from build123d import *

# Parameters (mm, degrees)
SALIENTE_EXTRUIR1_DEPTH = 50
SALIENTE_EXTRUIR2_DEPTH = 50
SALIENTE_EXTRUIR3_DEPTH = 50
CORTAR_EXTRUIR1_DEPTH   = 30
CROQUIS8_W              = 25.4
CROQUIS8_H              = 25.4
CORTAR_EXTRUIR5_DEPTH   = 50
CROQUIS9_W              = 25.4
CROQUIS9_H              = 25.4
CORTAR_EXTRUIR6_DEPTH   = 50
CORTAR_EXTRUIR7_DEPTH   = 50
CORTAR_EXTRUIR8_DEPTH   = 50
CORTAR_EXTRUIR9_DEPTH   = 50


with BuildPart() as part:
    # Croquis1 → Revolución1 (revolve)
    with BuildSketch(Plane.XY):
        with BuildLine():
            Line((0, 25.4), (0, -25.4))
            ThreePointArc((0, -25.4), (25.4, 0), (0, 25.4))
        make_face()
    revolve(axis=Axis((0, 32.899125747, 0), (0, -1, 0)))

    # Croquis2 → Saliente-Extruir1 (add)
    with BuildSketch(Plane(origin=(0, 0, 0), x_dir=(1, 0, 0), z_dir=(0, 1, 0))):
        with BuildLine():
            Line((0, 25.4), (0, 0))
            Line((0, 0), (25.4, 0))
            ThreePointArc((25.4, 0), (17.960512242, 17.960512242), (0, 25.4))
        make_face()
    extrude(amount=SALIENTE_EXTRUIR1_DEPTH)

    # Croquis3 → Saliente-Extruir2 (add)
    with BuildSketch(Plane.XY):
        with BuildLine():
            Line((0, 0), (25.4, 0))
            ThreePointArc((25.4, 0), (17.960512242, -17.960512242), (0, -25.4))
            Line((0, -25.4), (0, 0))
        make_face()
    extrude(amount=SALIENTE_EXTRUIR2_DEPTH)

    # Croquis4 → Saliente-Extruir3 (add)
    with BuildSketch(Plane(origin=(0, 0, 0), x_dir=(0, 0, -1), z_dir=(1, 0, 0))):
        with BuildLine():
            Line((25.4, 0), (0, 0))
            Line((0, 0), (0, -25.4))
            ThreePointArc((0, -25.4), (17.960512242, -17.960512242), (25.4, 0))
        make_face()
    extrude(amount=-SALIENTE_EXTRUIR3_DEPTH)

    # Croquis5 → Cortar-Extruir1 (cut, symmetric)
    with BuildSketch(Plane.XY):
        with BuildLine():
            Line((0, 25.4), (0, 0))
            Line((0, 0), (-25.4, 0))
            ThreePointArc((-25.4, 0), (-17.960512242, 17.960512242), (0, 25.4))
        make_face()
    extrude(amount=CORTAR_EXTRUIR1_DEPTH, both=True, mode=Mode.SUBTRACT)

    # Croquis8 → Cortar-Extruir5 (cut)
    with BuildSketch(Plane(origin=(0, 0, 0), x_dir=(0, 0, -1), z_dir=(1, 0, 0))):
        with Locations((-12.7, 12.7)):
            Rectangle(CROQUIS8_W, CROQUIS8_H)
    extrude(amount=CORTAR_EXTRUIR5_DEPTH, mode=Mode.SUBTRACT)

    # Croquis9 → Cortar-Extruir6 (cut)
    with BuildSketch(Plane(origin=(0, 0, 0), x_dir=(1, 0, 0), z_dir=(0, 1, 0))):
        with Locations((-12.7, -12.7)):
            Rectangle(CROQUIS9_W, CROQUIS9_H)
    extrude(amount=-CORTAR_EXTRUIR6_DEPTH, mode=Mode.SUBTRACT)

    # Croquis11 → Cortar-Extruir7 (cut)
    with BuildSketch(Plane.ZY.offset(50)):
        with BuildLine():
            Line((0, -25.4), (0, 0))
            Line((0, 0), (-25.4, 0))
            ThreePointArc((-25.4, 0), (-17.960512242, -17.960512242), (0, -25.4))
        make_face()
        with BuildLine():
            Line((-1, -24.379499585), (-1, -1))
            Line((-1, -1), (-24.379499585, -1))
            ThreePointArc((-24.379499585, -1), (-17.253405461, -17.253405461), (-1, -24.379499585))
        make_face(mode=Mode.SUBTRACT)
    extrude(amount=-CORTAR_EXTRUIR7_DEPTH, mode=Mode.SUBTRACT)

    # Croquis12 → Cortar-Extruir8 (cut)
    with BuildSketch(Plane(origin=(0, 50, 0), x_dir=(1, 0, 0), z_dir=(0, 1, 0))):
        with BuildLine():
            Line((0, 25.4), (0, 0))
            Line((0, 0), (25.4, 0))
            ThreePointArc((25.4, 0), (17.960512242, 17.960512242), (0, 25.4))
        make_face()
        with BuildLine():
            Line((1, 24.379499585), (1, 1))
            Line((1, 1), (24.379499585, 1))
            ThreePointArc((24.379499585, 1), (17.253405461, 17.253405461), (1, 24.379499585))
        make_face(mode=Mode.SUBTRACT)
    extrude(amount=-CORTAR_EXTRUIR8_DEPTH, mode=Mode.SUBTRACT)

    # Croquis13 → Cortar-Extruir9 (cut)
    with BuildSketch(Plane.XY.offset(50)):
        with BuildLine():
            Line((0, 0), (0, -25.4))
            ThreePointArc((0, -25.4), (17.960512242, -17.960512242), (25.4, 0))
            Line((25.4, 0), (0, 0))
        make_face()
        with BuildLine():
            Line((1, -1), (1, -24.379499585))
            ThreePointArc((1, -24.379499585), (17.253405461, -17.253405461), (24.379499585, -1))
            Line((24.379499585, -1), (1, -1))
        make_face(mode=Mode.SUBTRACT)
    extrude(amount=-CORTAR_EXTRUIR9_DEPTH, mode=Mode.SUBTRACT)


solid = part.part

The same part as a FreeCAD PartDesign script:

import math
import FreeCAD as App
import Part
import Sketcher
from FreeCAD import Vector
Q = App.Units.Quantity

doc = App.newDocument("Part")
body = doc.addObject("PartDesign::Body", "Body")

# Sketch on XY plane
sketch1 = body.newObject("Sketcher::SketchObject", "Sketch")
sketch1.AttachmentSupport = (doc.getObject("XY_Plane"), [""])
sketch1.MapMode = "FlatFace"
sketch1.addGeometry(Part.LineSegment(Vector(0, 25.4, 0), Vector(0, -25.4, 0)), False)
sketch1.addGeometry(Part.ArcOfCircle(Part.Circle(Vector(0, 0, 0), Vector(0, 0, 1), 25.4), math.radians(-90), math.radians(90)), False)
sketch1.addConstraint(Sketcher.Constraint("Coincident", 0, 1, 1, 2))
sketch1.addConstraint(Sketcher.Constraint("Coincident", 1, 1, 0, 2))
sketch1.addConstraint(Sketcher.Constraint("Vertical", 0))
sketch1.addConstraint(Sketcher.Constraint("Coincident", 1, 3, -1, 1))
sketch1.addConstraint(Sketcher.Constraint("PointOnObject", 0, 1, -2))
sketch1.addConstraint(Sketcher.Constraint("Radius", 1, Q("25.4 mm")))
revolution = body.newObject("PartDesign::Revolution", "Revolution")
revolution.Profile = sketch1
revolution.ReferenceAxis = (sketch1, ["V_Axis"])
revolution.Angle = 360

# Sketch on XZ plane
sketch2 = body.newObject("Sketcher::SketchObject", "Sketch001")
sketch2.AttachmentSupport = (doc.getObject("XZ_Plane"), [""])
sketch2.MapMode = "FlatFace"
sketch2.addGeometry(Part.LineSegment(Vector(0, -25.4, 0), Vector(0, 0, 0)), False)
sketch2.addGeometry(Part.LineSegment(Vector(0, 0, 0), Vector(25.4, 0, 0)), False)
sketch2.addGeometry(Part.ArcOfCircle(Part.Circle(Vector(0, 0, 0), Vector(0, 0, 1), 25.4), math.radians(-90), math.radians(0)), False)
sketch2.addConstraint(Sketcher.Constraint("Coincident", 0, 2, 1, 1))
sketch2.addConstraint(Sketcher.Constraint("Coincident", 1, 2, 2, 2))
sketch2.addConstraint(Sketcher.Constraint("Coincident", 2, 1, 0, 1))
sketch2.addConstraint(Sketcher.Constraint("Vertical", 0))
sketch2.addConstraint(Sketcher.Constraint("Horizontal", 1))
sketch2.addConstraint(Sketcher.Constraint("Coincident", 2, 3, -1, 1))
sketch2.addConstraint(Sketcher.Constraint("Coincident", 0, 2, -1, 1))
sketch2.addConstraint(Sketcher.Constraint("Radius", 2, Q("25.4 mm")))
pad1 = body.newObject("PartDesign::Pad", "Pad")
pad1.Profile = sketch2
pad1.Length = 50
pad1.Reversed = True

# Sketch on XY plane
sketch3 = body.newObject("Sketcher::SketchObject", "Sketch002")
sketch3.AttachmentSupport = (doc.getObject("XY_Plane"), [""])
sketch3.MapMode = "FlatFace"
sketch3.addGeometry(Part.LineSegment(Vector(25.4, 0, 0), Vector(0, 0, 0)), False)
sketch3.addGeometry(Part.LineSegment(Vector(0, 0, 0), Vector(0, -25.4, 0)), False)
sketch3.addGeometry(Part.ArcOfCircle(Part.Circle(Vector(0, 0, 0), Vector(0, 0, 1), 25.4), math.radians(-90), math.radians(0)), False)
sketch3.addConstraint(Sketcher.Constraint("Coincident", 0, 2, 1, 1))
sketch3.addConstraint(Sketcher.Constraint("Coincident", 1, 2, 2, 1))
sketch3.addConstraint(Sketcher.Constraint("Coincident", 2, 2, 0, 1))
sketch3.addConstraint(Sketcher.Constraint("Horizontal", 0))
sketch3.addConstraint(Sketcher.Constraint("Vertical", 1))
sketch3.addConstraint(Sketcher.Constraint("Coincident", 2, 3, -1, 1))
sketch3.addConstraint(Sketcher.Constraint("Coincident", 0, 2, -1, 1))
sketch3.addConstraint(Sketcher.Constraint("Radius", 2, Q("25.4 mm")))
pad2 = body.newObject("PartDesign::Pad", "Pad001")
pad2.Profile = sketch3
pad2.Length = 50

# Sketch on YZ plane
sketch4 = body.newObject("Sketcher::SketchObject", "Sketch003")
sketch4.AttachmentSupport = (doc.getObject("YZ_Plane"), [""])
sketch4.MapMode = "FlatFace"
sketch4.addGeometry(Part.LineSegment(Vector(0, -25.4, 0), Vector(0, 0, 0)), False)
sketch4.addGeometry(Part.LineSegment(Vector(0, 0, 0), Vector(-25.4, 0, 0)), False)
sketch4.addGeometry(Part.ArcOfCircle(Part.Circle(Vector(0, 0, 0), Vector(0, 0, 1), 25.4), math.radians(180), math.radians(270)), False)
sketch4.addConstraint(Sketcher.Constraint("Coincident", 0, 2, 1, 1))
sketch4.addConstraint(Sketcher.Constraint("Coincident", 1, 2, 2, 1))
sketch4.addConstraint(Sketcher.Constraint("Coincident", 2, 2, 0, 1))
sketch4.addConstraint(Sketcher.Constraint("Vertical", 0))
sketch4.addConstraint(Sketcher.Constraint("Horizontal", 1))
sketch4.addConstraint(Sketcher.Constraint("Coincident", 2, 3, -1, 1))
sketch4.addConstraint(Sketcher.Constraint("Coincident", 0, 2, -1, 1))
sketch4.addConstraint(Sketcher.Constraint("Radius", 2, Q("25.4 mm")))
pad3 = body.newObject("PartDesign::Pad", "Pad002")
pad3.Profile = sketch4
pad3.Length = 50
pad3.Reversed = True

# Sketch on XY plane
sketch5 = body.newObject("Sketcher::SketchObject", "Sketch004")
sketch5.AttachmentSupport = (doc.getObject("XY_Plane"), [""])
sketch5.MapMode = "FlatFace"
sketch5.addGeometry(Part.LineSegment(Vector(0, 0, 0), Vector(0, 25.4, 0)), False)
sketch5.addGeometry(Part.ArcOfCircle(Part.Circle(Vector(0, 0, 0), Vector(0, 0, 1), 25.4), math.radians(90), math.radians(180)), False)
sketch5.addGeometry(Part.LineSegment(Vector(-25.4, 0, 0), Vector(0, 0, 0)), False)
sketch5.addConstraint(Sketcher.Constraint("Coincident", 0, 2, 1, 1))
sketch5.addConstraint(Sketcher.Constraint("Coincident", 1, 2, 2, 1))
sketch5.addConstraint(Sketcher.Constraint("Coincident", 2, 2, 0, 1))
sketch5.addConstraint(Sketcher.Constraint("Vertical", 0))
sketch5.addConstraint(Sketcher.Constraint("Horizontal", 2))
sketch5.addConstraint(Sketcher.Constraint("Coincident", 1, 3, -1, 1))
sketch5.addConstraint(Sketcher.Constraint("Coincident", 2, 2, -1, 1))
sketch5.addConstraint(Sketcher.Constraint("Radius", 1, Q("25.4 mm")))
pocket1 = body.newObject("PartDesign::Pocket", "Pocket")
pocket1.Profile = sketch5
pocket1.Length = 60
pocket1.Midplane = True

# Sketch on YZ plane
sketch6 = body.newObject("Sketcher::SketchObject", "Sketch005")
sketch6.AttachmentSupport = (doc.getObject("YZ_Plane"), [""])
sketch6.MapMode = "FlatFace"
sketch6.addGeometry(Part.LineSegment(Vector(25.4, 25.4, 0), Vector(0, 25.4, 0)), False)
sketch6.addGeometry(Part.LineSegment(Vector(0, 25.4, 0), Vector(0, 0, 0)), False)
sketch6.addGeometry(Part.LineSegment(Vector(0, 0, 0), Vector(25.4, 0, 0)), False)
sketch6.addGeometry(Part.LineSegment(Vector(25.4, 0, 0), Vector(25.4, 25.4, 0)), False)
sketch6.addConstraint(Sketcher.Constraint("Coincident", 0, 2, 1, 1))
sketch6.addConstraint(Sketcher.Constraint("Coincident", 1, 2, 2, 1))
sketch6.addConstraint(Sketcher.Constraint("Coincident", 2, 2, 3, 1))
sketch6.addConstraint(Sketcher.Constraint("Coincident", 3, 2, 0, 1))
sketch6.addConstraint(Sketcher.Constraint("Horizontal", 0))
sketch6.addConstraint(Sketcher.Constraint("Vertical", 1))
sketch6.addConstraint(Sketcher.Constraint("Horizontal", 2))
sketch6.addConstraint(Sketcher.Constraint("Vertical", 3))
sketch6.addConstraint(Sketcher.Constraint("Coincident", 1, 2, -1, 1))
sketch6.addConstraint(Sketcher.Constraint("Equal", 2, 1))
sketch6.addConstraint(Sketcher.Constraint("DistanceX", 0, 2, 0, 1, Q("25.4 mm")))
pocket2 = body.newObject("PartDesign::Pocket", "Pocket001")
pocket2.Profile = sketch6
pocket2.Length = 50
pocket2.Reversed = True

# Sketch on XZ plane
sketch7 = body.newObject("Sketcher::SketchObject", "Sketch006")
sketch7.AttachmentSupport = (doc.getObject("XZ_Plane"), [""])
sketch7.MapMode = "FlatFace"
sketch7.addGeometry(Part.LineSegment(Vector(-25.4, 0, 0), Vector(-25.4, 25.4, 0)), False)
sketch7.addGeometry(Part.LineSegment(Vector(-25.4, 25.4, 0), Vector(0, 25.4, 0)), False)
sketch7.addGeometry(Part.LineSegment(Vector(0, 25.4, 0), Vector(0, 0, 0)), False)
sketch7.addGeometry(Part.LineSegment(Vector(0, 0, 0), Vector(-25.4, 0, 0)), False)
sketch7.addConstraint(Sketcher.Constraint("Coincident", 0, 2, 1, 1))
sketch7.addConstraint(Sketcher.Constraint("Coincident", 1, 2, 2, 1))
sketch7.addConstraint(Sketcher.Constraint("Coincident", 2, 2, 3, 1))
sketch7.addConstraint(Sketcher.Constraint("Coincident", 3, 2, 0, 1))
sketch7.addConstraint(Sketcher.Constraint("Vertical", 0))
sketch7.addConstraint(Sketcher.Constraint("Horizontal", 1))
sketch7.addConstraint(Sketcher.Constraint("Vertical", 2))
sketch7.addConstraint(Sketcher.Constraint("Horizontal", 3))
sketch7.addConstraint(Sketcher.Constraint("Coincident", 2, 2, -1, 1))
sketch7.addConstraint(Sketcher.Constraint("Equal", 3, 0))
sketch7.addConstraint(Sketcher.Constraint("DistanceX", 1, 1, 1, 2, Q("25.4 mm")))
pocket3 = body.newObject("PartDesign::Pocket", "Pocket002")
pocket3.Profile = sketch7
pocket3.Length = 50
pocket3.Reversed = True

# Sketch on YZ plane
sketch8 = body.newObject("Sketcher::SketchObject", "Sketch007")
sketch8.AttachmentSupport = (doc.getObject("YZ_Plane"), [""])
sketch8.MapMode = "FlatFace"
sketch8.AttachmentOffset = App.Placement(Vector(0, 0, -50), App.Rotation())
sketch8.addGeometry(Part.LineSegment(Vector(-25.4, 0, 0), Vector(0, 0, 0)), False)
sketch8.addGeometry(Part.LineSegment(Vector(0, 0, 0), Vector(0, -25.4, 0)), False)
sketch8.addGeometry(Part.ArcOfCircle(Part.Circle(Vector(0, 0, 0), Vector(0, 0, 1), 25.4), math.radians(180), math.radians(270)), False)
sketch8.addGeometry(Part.LineSegment(Vector(-1, -1, 0), Vector(-24.3795, -1, 0)), False)
sketch8.addGeometry(Part.ArcOfCircle(Part.Circle(Vector(0, 0, 0), Vector(0, 0, 1), 24.4), math.radians(-177.651154), math.radians(-92.348846)), False)
sketch8.addGeometry(Part.LineSegment(Vector(-1, -24.3795, 0), Vector(-1, -1, 0)), False)
sketch8.addConstraint(Sketcher.Constraint("Coincident", 0, 2, 1, 1))
sketch8.addConstraint(Sketcher.Constraint("Coincident", 1, 2, 2, 2))
sketch8.addConstraint(Sketcher.Constraint("Coincident", 2, 1, 0, 1))
sketch8.addConstraint(Sketcher.Constraint("Coincident", 3, 2, 4, 1))
sketch8.addConstraint(Sketcher.Constraint("Coincident", 4, 2, 5, 1))
sketch8.addConstraint(Sketcher.Constraint("Coincident", 5, 2, 3, 1))
sketch8.addConstraint(Sketcher.Constraint("Horizontal", 0))
sketch8.addConstraint(Sketcher.Constraint("Vertical", 1))
sketch8.addConstraint(Sketcher.Constraint("Horizontal", 3))
sketch8.addConstraint(Sketcher.Constraint("Vertical", 5))
sketch8.addConstraint(Sketcher.Constraint("Coincident", 2, 3, -1, 1))
sketch8.addConstraint(Sketcher.Constraint("Coincident", 4, 3, -1, 1))
sketch8.addConstraint(Sketcher.Constraint("Coincident", 0, 2, -1, 1))
sketch8.addConstraint(Sketcher.Constraint("Equal", 3, 5))
sketch8.addConstraint(Sketcher.Constraint("Radius", 2, Q("25.4 mm")))
sketch8.addConstraint(Sketcher.Constraint("Radius", 4, Q("24.4 mm")))
sketch8.addConstraint(Sketcher.Constraint("DistanceY", 3, 2, -1, 1, Q("1 mm")))
pocket4 = body.newObject("PartDesign::Pocket", "Pocket003")
pocket4.Profile = sketch8
pocket4.Length = 50
pocket4.Reversed = True

# Sketch on XZ plane
sketch9 = body.newObject("Sketcher::SketchObject", "Sketch008")
sketch9.AttachmentSupport = (doc.getObject("XZ_Plane"), [""])
sketch9.MapMode = "FlatFace"
sketch9.AttachmentOffset = App.Placement(Vector(0, 0, -50), App.Rotation())
sketch9.addGeometry(Part.LineSegment(Vector(0, -25.4, 0), Vector(0, 0, 0)), False)
sketch9.addGeometry(Part.LineSegment(Vector(0, 0, 0), Vector(25.4, 0, 0)), False)
sketch9.addGeometry(Part.ArcOfCircle(Part.Circle(Vector(0, 0, 0), Vector(0, 0, 1), 25.4), math.radians(-90), math.radians(0)), False)
sketch9.addGeometry(Part.LineSegment(Vector(1, -1, 0), Vector(1, -24.3795, 0)), False)
sketch9.addGeometry(Part.ArcOfCircle(Part.Circle(Vector(0, 0, 0), Vector(0, 0, 1), 24.4), math.radians(-87.651154), math.radians(-2.348846)), False)
sketch9.addGeometry(Part.LineSegment(Vector(24.3795, -1, 0), Vector(1, -1, 0)), False)
sketch9.addConstraint(Sketcher.Constraint("Coincident", 0, 2, 1, 1))
sketch9.addConstraint(Sketcher.Constraint("Coincident", 1, 2, 2, 2))
sketch9.addConstraint(Sketcher.Constraint("Coincident", 2, 1, 0, 1))
sketch9.addConstraint(Sketcher.Constraint("Coincident", 3, 2, 4, 1))
sketch9.addConstraint(Sketcher.Constraint("Coincident", 4, 2, 5, 1))
sketch9.addConstraint(Sketcher.Constraint("Coincident", 5, 2, 3, 1))
sketch9.addConstraint(Sketcher.Constraint("Vertical", 0))
sketch9.addConstraint(Sketcher.Constraint("Horizontal", 1))
sketch9.addConstraint(Sketcher.Constraint("Vertical", 3))
sketch9.addConstraint(Sketcher.Constraint("Horizontal", 5))
sketch9.addConstraint(Sketcher.Constraint("Coincident", 2, 3, -1, 1))
sketch9.addConstraint(Sketcher.Constraint("Coincident", 4, 3, -1, 1))
sketch9.addConstraint(Sketcher.Constraint("Coincident", 0, 2, -1, 1))
sketch9.addConstraint(Sketcher.Constraint("Equal", 5, 3))
sketch9.addConstraint(Sketcher.Constraint("Radius", 2, Q("25.4 mm")))
sketch9.addConstraint(Sketcher.Constraint("Radius", 4, Q("24.4 mm")))
sketch9.addConstraint(Sketcher.Constraint("DistanceX", -1, 1, 3, 2, Q("1 mm")))
pocket5 = body.newObject("PartDesign::Pocket", "Pocket004")
pocket5.Profile = sketch9
pocket5.Length = 50
pocket5.Reversed = True

# Sketch on XY plane
sketch10 = body.newObject("Sketcher::SketchObject", "Sketch009")
sketch10.AttachmentSupport = (doc.getObject("XY_Plane"), [""])
sketch10.MapMode = "FlatFace"
sketch10.AttachmentOffset = App.Placement(Vector(0, 0, 50), App.Rotation())
sketch10.addGeometry(Part.LineSegment(Vector(0, 0, 0), Vector(0, -25.4, 0)), False)
sketch10.addGeometry(Part.ArcOfCircle(Part.Circle(Vector(0, 0, 0), Vector(0, 0, 1), 25.4), math.radians(-90), math.radians(0)), False)
sketch10.addGeometry(Part.LineSegment(Vector(25.4, 0, 0), Vector(0, 0, 0)), False)
sketch10.addGeometry(Part.LineSegment(Vector(1, -24.3795, 0), Vector(1, -1, 0)), False)
sketch10.addGeometry(Part.LineSegment(Vector(1, -1, 0), Vector(24.3795, -1, 0)), False)
sketch10.addGeometry(Part.ArcOfCircle(Part.Circle(Vector(0, 0, 0), Vector(0, 0, 1), 24.4), math.radians(-87.651154), math.radians(-2.348846)), False)
sketch10.addConstraint(Sketcher.Constraint("Coincident", 0, 2, 1, 1))
sketch10.addConstraint(Sketcher.Constraint("Coincident", 1, 2, 2, 1))
sketch10.addConstraint(Sketcher.Constraint("Coincident", 2, 2, 0, 1))
sketch10.addConstraint(Sketcher.Constraint("Coincident", 3, 2, 4, 1))
sketch10.addConstraint(Sketcher.Constraint("Coincident", 4, 2, 5, 2))
sketch10.addConstraint(Sketcher.Constraint("Coincident", 5, 1, 3, 1))
sketch10.addConstraint(Sketcher.Constraint("Vertical", 0))
sketch10.addConstraint(Sketcher.Constraint("Horizontal", 2))
sketch10.addConstraint(Sketcher.Constraint("Vertical", 3))
sketch10.addConstraint(Sketcher.Constraint("Horizontal", 4))
sketch10.addConstraint(Sketcher.Constraint("Coincident", 1, 3, -1, 1))
sketch10.addConstraint(Sketcher.Constraint("Coincident", 5, 3, -1, 1))
sketch10.addConstraint(Sketcher.Constraint("Coincident", 2, 2, -1, 1))
sketch10.addConstraint(Sketcher.Constraint("Equal", 4, 3))
sketch10.addConstraint(Sketcher.Constraint("Radius", 1, Q("25.4 mm")))
sketch10.addConstraint(Sketcher.Constraint("Radius", 5, Q("24.4 mm")))
sketch10.addConstraint(Sketcher.Constraint("DistanceX", -1, 1, 3, 2, Q("1 mm")))
pocket6 = body.newObject("PartDesign::Pocket", "Pocket005")
pocket6.Profile = sketch10
pocket6.Length = 50

doc.recompute()
